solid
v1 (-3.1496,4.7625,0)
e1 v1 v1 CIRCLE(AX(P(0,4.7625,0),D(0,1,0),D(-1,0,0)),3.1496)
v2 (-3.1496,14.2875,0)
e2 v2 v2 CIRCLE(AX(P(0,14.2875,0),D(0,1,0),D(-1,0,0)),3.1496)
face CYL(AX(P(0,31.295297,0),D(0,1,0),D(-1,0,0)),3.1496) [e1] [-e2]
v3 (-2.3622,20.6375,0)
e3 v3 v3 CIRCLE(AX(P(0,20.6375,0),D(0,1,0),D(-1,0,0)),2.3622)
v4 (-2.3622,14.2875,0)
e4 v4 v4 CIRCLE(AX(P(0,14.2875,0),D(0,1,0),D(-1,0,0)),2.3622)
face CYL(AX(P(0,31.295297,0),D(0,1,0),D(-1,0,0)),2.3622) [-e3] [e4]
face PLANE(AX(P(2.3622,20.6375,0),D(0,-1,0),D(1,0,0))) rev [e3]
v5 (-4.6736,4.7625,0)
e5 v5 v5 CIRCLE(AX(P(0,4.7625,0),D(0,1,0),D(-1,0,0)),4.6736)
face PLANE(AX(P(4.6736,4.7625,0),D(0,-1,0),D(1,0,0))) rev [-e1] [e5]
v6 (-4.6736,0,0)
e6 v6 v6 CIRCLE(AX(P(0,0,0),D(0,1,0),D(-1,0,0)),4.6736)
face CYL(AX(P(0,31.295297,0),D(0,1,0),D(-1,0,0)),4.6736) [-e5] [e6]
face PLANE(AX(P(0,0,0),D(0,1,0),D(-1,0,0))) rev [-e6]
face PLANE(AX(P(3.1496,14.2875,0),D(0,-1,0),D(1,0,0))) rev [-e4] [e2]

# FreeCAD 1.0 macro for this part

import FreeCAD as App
import Part
import Sketcher

V = App.Vector
Q = App.Units.Quantity


def add_polygon(sketch, points):
    """Adds a closed chain of lines whose ends are joined by coincident constraints."""
    first, n = sketch.GeometryCount, len(points)
    for a, b in zip(points, points[1:] + points[:1]):
        sketch.addGeometry(Part.LineSegment(App.Vector(*a, 0), App.Vector(*b, 0)), False)
    for i in range(n):
        sketch.addConstraint(Sketcher.Constraint("Coincident", first + i, 2, first + (i + 1) % n, 1))

doc = App.newDocument("Part")
body = doc.addObject("PartDesign::Body", "Body")

sketch1 = body.newObject("Sketcher::SketchObject", "Sketch")
sketch1.AttachmentSupport = (doc.getObject("XY_Plane"), [""])
sketch1.MapMode = "FlatFace"
add_polygon(sketch1, [(0, 0), (4.7, 0), (4.7, 4.8), (3.1, 4.8), (3.1, 14.3), (2.4, 14.3), (2.4, 20.6), (0, 20.6)])
sketch1.addConstraint([
    Sketcher.Constraint("Horizontal", 0),
    Sketcher.Constraint("Vertical", 1),
    Sketcher.Constraint("Horizontal", 2),
    Sketcher.Constraint("Vertical", 3),
    Sketcher.Constraint("Horizontal", 4),
    Sketcher.Constraint("Vertical", 5),
    Sketcher.Constraint("Horizontal", 6),
    Sketcher.Constraint("Vertical", 7),
    Sketcher.Constraint("Coincident", 7, 2, -1, 1),
    Sketcher.Constraint("DistanceX", 2, 2, 2, 1, Q("0.06 in")),
    Sketcher.Constraint("DistanceY", 5, 1, 5, 2, Q("0.25 in")),
    Sketcher.Constraint("DistanceX", 0, 1, 0, 2, Q("0.184 in")),
    Sketcher.Constraint("DistanceX", 4, 2, 4, 1, Q("0.031 in")),
    Sketcher.Constraint("DistanceY", 1, 1, 1, 2, Q("0.1875 in")),
    Sketcher.Constraint("DistanceY", 3, 1, 3, 2, Q("0.375 in")),
])
revolution = body.newObject("PartDesign::Revolution", "Revolution")
revolution.Profile = sketch1
revolution.ReferenceAxis = (sketch1, ["V_Axis"])
revolution.Angle = 360

doc.recompute()
